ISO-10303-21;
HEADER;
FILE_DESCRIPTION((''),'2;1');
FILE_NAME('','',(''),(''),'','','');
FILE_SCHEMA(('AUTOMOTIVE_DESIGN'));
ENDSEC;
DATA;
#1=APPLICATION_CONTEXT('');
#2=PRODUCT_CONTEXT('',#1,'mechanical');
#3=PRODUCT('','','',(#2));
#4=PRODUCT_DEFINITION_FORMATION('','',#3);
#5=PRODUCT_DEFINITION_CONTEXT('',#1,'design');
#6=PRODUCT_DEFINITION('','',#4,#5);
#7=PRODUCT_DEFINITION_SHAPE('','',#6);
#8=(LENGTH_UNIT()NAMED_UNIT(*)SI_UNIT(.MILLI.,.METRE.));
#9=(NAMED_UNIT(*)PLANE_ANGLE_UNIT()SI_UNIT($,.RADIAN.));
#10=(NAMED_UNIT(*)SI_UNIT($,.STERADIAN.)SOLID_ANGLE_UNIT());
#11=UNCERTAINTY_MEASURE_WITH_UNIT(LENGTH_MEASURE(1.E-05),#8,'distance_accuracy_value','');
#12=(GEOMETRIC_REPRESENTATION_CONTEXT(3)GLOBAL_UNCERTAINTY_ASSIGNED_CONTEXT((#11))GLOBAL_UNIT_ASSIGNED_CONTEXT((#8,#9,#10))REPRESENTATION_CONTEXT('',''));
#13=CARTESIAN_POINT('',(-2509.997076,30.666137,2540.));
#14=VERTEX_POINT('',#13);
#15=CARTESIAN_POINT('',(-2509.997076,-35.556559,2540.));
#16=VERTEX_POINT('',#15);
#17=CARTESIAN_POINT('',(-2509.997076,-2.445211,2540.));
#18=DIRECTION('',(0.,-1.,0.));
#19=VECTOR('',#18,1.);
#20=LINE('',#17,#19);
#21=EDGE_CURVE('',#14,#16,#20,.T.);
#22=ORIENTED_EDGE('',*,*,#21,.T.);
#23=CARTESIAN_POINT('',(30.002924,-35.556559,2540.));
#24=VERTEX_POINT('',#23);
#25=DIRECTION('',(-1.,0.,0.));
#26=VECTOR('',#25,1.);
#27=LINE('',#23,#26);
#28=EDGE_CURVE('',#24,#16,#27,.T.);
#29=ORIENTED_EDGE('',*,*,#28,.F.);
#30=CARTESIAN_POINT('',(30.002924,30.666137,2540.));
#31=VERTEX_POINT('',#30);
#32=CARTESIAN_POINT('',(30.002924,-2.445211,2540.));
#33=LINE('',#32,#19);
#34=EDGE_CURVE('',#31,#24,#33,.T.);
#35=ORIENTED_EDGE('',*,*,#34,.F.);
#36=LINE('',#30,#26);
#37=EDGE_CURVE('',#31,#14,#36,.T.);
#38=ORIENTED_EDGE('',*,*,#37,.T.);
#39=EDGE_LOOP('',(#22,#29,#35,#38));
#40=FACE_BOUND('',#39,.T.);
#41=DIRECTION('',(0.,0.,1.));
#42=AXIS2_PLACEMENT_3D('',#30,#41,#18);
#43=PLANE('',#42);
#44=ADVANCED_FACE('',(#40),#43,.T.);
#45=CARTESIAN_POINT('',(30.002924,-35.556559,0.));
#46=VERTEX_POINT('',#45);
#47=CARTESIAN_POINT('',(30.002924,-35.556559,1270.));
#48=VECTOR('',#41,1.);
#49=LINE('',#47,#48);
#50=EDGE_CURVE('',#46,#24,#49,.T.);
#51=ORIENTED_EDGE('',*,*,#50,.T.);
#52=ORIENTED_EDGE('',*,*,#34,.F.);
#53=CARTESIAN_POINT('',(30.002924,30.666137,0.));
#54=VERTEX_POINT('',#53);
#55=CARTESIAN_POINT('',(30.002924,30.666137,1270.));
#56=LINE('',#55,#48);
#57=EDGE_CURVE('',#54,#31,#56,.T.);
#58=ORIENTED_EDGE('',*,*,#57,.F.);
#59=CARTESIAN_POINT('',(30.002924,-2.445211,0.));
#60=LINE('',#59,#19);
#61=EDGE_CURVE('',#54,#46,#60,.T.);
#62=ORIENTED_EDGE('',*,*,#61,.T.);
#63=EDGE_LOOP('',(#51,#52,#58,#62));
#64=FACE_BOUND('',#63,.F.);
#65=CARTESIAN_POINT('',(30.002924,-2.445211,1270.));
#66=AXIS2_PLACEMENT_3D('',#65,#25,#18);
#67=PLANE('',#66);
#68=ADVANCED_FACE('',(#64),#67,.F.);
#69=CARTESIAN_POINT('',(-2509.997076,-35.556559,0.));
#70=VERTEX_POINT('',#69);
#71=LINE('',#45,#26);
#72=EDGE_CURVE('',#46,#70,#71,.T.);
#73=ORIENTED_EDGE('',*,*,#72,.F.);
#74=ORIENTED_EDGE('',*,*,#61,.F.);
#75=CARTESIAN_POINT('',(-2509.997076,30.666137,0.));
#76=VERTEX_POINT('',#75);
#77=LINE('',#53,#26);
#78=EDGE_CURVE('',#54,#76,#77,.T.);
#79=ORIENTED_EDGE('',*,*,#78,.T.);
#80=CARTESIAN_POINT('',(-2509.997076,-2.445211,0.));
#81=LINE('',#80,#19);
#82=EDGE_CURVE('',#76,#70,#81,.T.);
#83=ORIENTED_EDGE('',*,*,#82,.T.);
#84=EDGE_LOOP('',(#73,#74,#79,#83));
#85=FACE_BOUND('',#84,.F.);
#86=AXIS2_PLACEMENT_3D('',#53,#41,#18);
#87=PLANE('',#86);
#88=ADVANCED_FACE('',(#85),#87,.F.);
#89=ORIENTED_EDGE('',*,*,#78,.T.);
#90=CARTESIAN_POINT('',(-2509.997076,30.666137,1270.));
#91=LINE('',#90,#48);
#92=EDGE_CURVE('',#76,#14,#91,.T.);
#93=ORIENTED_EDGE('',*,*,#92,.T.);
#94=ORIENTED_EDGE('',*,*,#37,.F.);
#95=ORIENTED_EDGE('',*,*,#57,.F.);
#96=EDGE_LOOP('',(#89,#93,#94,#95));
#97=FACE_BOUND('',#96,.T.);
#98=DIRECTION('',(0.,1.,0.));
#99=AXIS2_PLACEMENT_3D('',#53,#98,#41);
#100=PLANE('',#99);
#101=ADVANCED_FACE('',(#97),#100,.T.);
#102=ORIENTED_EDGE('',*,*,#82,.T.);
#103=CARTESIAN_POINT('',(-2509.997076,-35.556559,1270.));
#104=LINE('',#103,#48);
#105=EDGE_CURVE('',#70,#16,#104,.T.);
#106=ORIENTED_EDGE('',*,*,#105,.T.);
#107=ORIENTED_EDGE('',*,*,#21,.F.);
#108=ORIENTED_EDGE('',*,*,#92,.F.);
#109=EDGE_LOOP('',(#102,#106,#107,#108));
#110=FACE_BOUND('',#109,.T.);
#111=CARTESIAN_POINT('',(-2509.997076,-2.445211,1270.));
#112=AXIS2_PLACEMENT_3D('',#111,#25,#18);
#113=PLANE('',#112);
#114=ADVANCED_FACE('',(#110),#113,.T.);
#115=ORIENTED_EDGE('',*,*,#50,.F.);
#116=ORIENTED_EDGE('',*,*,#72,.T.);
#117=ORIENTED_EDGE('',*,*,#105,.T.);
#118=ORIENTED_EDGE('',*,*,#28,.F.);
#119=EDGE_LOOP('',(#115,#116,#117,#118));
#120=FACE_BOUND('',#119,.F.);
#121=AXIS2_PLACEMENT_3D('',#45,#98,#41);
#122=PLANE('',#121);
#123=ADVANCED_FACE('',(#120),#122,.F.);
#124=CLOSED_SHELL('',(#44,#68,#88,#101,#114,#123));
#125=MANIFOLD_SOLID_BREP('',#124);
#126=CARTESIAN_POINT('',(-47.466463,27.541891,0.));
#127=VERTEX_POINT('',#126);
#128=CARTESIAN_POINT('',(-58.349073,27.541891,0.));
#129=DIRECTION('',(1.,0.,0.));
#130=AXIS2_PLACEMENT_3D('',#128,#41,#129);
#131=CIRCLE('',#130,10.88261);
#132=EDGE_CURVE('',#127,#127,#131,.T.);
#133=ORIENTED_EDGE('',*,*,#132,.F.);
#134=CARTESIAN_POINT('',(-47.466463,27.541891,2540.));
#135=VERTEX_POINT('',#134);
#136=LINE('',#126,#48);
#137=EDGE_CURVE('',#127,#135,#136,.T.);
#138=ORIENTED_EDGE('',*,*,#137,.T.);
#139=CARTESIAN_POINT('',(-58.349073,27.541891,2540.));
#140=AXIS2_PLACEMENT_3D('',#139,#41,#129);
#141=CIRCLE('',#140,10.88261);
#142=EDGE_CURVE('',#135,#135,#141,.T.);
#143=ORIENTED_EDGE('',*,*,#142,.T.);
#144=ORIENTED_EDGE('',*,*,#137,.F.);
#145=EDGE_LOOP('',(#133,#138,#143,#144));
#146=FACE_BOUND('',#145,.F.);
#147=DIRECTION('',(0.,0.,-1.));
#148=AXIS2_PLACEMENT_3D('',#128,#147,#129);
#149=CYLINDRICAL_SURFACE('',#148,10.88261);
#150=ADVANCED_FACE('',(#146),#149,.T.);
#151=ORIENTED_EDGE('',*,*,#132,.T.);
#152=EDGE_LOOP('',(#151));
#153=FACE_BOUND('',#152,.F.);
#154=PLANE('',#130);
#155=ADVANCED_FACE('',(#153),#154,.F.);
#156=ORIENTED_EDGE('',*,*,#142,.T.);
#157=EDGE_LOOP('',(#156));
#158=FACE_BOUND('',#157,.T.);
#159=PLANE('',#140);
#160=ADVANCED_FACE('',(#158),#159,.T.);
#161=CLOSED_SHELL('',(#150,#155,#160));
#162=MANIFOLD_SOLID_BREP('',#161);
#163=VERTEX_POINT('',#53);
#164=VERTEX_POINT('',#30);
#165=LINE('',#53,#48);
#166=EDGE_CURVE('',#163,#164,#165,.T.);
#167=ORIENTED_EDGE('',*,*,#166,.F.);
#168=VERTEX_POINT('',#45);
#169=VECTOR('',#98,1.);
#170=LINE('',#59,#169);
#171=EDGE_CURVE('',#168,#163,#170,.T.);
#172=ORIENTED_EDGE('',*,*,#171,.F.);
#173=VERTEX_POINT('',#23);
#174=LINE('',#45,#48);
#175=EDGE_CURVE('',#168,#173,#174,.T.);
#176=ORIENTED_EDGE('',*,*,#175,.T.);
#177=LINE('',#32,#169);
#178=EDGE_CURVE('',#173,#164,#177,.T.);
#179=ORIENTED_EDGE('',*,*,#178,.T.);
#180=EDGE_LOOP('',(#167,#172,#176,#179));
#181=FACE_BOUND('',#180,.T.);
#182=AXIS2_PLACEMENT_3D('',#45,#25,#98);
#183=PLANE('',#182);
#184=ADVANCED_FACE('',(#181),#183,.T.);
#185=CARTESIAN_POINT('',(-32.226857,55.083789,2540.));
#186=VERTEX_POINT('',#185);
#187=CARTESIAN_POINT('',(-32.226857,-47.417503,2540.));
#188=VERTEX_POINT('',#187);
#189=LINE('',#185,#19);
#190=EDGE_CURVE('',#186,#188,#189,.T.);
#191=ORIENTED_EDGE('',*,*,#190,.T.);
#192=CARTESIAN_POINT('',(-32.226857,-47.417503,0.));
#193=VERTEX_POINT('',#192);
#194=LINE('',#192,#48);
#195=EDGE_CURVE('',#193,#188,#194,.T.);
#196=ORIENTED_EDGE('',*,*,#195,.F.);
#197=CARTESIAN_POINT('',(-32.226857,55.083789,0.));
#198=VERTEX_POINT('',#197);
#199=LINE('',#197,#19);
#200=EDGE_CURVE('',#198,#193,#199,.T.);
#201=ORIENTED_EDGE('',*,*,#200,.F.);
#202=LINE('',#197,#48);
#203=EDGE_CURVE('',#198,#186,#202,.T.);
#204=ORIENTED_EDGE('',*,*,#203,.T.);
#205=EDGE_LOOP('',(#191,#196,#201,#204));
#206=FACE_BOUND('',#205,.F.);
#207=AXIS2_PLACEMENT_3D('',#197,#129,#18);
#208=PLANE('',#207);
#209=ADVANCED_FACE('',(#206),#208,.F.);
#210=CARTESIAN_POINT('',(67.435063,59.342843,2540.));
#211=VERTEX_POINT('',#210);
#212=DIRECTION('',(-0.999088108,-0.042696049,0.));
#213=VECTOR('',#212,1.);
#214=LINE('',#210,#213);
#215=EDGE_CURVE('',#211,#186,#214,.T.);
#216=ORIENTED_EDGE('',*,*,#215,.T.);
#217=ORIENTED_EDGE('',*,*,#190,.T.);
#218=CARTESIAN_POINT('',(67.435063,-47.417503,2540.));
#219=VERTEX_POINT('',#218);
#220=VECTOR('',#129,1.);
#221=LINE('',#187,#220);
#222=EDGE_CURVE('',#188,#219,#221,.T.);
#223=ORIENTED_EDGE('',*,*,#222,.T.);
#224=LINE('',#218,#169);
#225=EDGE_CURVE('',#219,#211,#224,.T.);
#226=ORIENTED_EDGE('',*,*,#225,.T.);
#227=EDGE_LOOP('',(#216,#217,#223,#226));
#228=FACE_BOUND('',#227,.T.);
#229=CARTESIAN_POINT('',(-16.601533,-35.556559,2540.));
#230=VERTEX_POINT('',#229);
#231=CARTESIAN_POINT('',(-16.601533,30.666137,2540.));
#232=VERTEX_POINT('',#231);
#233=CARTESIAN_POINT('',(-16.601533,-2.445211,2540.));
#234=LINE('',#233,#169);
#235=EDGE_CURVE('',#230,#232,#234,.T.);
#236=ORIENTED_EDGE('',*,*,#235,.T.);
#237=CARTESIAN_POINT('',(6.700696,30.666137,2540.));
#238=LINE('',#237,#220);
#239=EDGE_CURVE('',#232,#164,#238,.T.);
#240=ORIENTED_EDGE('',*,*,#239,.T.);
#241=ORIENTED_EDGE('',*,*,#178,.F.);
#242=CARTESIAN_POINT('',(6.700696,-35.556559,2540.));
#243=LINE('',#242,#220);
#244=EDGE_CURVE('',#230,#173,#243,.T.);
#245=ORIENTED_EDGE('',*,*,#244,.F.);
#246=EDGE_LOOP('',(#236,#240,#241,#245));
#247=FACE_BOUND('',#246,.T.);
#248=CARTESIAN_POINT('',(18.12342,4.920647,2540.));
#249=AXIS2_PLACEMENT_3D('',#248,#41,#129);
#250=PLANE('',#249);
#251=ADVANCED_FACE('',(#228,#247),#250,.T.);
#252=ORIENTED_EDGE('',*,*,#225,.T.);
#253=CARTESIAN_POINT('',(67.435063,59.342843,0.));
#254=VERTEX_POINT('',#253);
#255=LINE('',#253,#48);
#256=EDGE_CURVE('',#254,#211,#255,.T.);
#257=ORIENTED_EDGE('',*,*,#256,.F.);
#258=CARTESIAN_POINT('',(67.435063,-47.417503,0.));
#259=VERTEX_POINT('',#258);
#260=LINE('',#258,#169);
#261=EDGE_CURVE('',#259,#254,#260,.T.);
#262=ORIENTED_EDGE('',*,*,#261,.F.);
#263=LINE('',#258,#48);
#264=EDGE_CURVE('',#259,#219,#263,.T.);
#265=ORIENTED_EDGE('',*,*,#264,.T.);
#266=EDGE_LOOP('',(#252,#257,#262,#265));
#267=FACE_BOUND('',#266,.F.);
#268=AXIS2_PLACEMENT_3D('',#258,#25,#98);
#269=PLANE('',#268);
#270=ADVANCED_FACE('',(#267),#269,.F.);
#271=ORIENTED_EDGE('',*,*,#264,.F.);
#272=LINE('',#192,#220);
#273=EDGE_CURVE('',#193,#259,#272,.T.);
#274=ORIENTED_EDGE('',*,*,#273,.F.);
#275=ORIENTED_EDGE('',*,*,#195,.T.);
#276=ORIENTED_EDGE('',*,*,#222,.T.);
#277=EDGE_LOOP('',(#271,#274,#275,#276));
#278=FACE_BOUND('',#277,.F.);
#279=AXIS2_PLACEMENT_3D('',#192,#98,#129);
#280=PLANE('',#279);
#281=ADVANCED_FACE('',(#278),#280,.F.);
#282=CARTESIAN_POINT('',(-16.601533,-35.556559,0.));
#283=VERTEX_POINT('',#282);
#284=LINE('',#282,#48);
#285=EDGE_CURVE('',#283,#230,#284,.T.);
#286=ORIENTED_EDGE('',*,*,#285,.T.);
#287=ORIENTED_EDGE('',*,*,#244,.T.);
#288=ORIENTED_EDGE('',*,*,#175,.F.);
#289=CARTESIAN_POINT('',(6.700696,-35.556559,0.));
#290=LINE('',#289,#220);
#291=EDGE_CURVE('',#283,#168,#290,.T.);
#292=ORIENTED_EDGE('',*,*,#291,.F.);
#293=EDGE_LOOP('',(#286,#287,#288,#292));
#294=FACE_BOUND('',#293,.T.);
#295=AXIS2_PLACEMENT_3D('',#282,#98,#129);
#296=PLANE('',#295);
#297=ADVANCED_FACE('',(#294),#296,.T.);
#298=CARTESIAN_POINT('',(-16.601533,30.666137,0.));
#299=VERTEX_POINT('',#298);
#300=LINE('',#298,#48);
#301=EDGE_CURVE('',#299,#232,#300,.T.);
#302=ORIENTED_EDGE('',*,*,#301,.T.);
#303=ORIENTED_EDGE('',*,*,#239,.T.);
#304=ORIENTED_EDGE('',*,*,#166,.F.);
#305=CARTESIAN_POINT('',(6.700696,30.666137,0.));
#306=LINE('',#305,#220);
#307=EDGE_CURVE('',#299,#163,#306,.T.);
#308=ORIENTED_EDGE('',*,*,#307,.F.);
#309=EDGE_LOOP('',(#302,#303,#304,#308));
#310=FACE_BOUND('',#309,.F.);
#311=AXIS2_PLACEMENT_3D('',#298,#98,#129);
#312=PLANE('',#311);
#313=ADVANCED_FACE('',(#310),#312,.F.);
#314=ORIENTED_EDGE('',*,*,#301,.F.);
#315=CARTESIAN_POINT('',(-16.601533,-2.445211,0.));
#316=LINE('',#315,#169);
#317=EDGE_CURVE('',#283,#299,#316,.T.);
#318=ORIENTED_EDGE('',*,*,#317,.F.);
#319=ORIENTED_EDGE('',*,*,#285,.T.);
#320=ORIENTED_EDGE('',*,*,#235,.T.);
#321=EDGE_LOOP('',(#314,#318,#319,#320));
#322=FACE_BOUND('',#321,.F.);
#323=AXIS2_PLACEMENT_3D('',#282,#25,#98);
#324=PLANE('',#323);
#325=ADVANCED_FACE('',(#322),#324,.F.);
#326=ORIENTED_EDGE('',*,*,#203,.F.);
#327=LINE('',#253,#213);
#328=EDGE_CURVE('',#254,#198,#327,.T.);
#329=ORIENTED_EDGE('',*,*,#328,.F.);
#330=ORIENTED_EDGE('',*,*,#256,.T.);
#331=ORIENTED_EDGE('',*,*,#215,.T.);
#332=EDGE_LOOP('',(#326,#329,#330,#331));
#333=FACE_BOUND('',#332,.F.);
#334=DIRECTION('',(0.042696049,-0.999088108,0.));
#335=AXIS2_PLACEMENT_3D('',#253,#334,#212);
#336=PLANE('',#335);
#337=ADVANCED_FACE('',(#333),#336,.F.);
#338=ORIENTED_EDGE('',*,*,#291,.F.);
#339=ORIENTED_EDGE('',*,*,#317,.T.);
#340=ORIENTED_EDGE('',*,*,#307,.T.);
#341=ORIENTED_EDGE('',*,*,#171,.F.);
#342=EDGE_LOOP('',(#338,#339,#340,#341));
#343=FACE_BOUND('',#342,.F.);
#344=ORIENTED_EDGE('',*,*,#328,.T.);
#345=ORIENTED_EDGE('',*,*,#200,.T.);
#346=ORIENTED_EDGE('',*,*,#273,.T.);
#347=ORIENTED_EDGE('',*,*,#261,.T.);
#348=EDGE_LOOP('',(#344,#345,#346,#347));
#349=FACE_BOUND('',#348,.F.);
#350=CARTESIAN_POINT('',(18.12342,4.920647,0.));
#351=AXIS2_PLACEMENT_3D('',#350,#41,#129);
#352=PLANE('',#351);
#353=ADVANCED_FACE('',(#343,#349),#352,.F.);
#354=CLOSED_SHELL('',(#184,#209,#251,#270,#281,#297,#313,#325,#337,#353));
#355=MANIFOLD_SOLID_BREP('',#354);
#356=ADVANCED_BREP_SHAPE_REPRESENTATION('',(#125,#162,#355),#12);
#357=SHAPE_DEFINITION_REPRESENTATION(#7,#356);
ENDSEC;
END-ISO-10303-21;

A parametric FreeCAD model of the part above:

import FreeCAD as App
import Part
import Sketcher
Q = App.Units.Quantity


def add_polygon(sketch, points):
    """Adds a closed chain of lines whose ends are joined by coincident constraints."""
    first, n = sketch.GeometryCount, len(points)
    for a, b in zip(points, points[1:] + points[:1]):
        sketch.addGeometry(Part.LineSegment(App.Vector(*a, 0), App.Vector(*b, 0)), False)
    for i in range(n):
        sketch.addConstraint(Sketcher.Constraint("Coincident", first + i, 2, first + (i + 1) % n, 1))

doc = App.newDocument("Part")
body = doc.addObject("PartDesign::Body", "Body")
body.AllowCompound = True

# Sketch on XY plane
sketch1 = body.newObject("Sketcher::SketchObject", "Sketch")
sketch1.AttachmentSupport = (doc.getObject("XY_Plane"), [""])
sketch1.MapMode = "FlatFace"
add_polygon(sketch1, [(67, 59), (-32, 55), (-32, -47), (67, -47)])  # lines 0-3
add_polygon(sketch1, [(30, -36), (-17, -36), (-17, 31), (30, 31)])  # lines 4-7
sketch1.addGeometry(Part.Circle(App.Vector(-58, 28, 0), App.Vector(0, 0, 1), 11), False)  # 8
sketch1.addConstraint([
    Sketcher.Constraint("Vertical", 1),
    Sketcher.Constraint("Horizontal", 2),
    Sketcher.Constraint("Vertical", 3),
    Sketcher.Constraint("Horizontal", 4),
    Sketcher.Constraint("Vertical", 5),
    Sketcher.Constraint("Horizontal", 6),
    Sketcher.Constraint("Vertical", 7),
    Sketcher.Constraint("Diameter", 8, 21.76522),
    Sketcher.Constraint("DistanceX", 2, 1, 2, 2, 99.66192),
    Sketcher.Constraint("DistanceY", 8, 3, 0, 2, 27.541898),
    Sketcher.Constraint("DistanceX", 4, 2, 4, 1, 46.604457),
    Sketcher.Constraint("DistanceY", 1, 2, 1, 1, 102.501292),
    Sketcher.Constraint("DistanceY", 3, 1, 3, 2, 106.760346),
    Sketcher.Constraint("DistanceY", 5, 1, 5, 2, 66.222696),
    Sketcher.Constraint("DistanceY", -1, 1, 8, 3, 27.541891),
    Sketcher.Constraint("DistanceY", 4, 2, -1, 1, 35.556559),
    Sketcher.Constraint("DistanceX", 8, 3, 4, 2, 41.74754),
    Sketcher.Constraint("DistanceX", 6, 2, 3, 2, 37.432139),
    Sketcher.Constraint("DistanceX", 8, 3, -1, 1, 58.349073),
])
pad1 = body.newObject("PartDesign::Pad", "Pad")
pad1.Profile = sketch1
pad1.Length = Q("100 in")
body2 = doc.addObject("PartDesign::Body", "Body001")

# Sketch on YZ plane
sketch2 = body2.newObject("Sketcher::SketchObject", "Sketch001")
sketch2.AttachmentSupport = (doc.getObject("YZ_Plane001"), [""])
sketch2.MapMode = "FlatFace"
sketch2.AttachmentOffset = App.Placement(App.Vector(0, 0, 30.002924), App.Rotation())
add_polygon(sketch2, [(31, 2540), (31, 0), (-36, 0), (-36, 2540)])  # lines 0-3
sketch2.addConstraint([
    Sketcher.Constraint("Vertical", 0),
    Sketcher.Constraint("Horizontal", 1),
    Sketcher.Constraint("Vertical", 2),
    Sketcher.Constraint("Horizontal", 3),
    Sketcher.Constraint("PointOnObject", 0, 2, -1),
    Sketcher.Constraint("DistanceY", 0, 2, 0, 1, Q("100 in")),
    Sketcher.Constraint("DistanceX", 1, 2, 1, 1, 66.222696),
    Sketcher.Constraint("DistanceX", 1, 2, -1, 1, 35.556559),
])
pad2 = body2.newObject("PartDesign::Pad", "Pad001")
pad2.Profile = sketch2
pad2.Length = Q("100 in")
pad2.Reversed = True

doc.recompute()
